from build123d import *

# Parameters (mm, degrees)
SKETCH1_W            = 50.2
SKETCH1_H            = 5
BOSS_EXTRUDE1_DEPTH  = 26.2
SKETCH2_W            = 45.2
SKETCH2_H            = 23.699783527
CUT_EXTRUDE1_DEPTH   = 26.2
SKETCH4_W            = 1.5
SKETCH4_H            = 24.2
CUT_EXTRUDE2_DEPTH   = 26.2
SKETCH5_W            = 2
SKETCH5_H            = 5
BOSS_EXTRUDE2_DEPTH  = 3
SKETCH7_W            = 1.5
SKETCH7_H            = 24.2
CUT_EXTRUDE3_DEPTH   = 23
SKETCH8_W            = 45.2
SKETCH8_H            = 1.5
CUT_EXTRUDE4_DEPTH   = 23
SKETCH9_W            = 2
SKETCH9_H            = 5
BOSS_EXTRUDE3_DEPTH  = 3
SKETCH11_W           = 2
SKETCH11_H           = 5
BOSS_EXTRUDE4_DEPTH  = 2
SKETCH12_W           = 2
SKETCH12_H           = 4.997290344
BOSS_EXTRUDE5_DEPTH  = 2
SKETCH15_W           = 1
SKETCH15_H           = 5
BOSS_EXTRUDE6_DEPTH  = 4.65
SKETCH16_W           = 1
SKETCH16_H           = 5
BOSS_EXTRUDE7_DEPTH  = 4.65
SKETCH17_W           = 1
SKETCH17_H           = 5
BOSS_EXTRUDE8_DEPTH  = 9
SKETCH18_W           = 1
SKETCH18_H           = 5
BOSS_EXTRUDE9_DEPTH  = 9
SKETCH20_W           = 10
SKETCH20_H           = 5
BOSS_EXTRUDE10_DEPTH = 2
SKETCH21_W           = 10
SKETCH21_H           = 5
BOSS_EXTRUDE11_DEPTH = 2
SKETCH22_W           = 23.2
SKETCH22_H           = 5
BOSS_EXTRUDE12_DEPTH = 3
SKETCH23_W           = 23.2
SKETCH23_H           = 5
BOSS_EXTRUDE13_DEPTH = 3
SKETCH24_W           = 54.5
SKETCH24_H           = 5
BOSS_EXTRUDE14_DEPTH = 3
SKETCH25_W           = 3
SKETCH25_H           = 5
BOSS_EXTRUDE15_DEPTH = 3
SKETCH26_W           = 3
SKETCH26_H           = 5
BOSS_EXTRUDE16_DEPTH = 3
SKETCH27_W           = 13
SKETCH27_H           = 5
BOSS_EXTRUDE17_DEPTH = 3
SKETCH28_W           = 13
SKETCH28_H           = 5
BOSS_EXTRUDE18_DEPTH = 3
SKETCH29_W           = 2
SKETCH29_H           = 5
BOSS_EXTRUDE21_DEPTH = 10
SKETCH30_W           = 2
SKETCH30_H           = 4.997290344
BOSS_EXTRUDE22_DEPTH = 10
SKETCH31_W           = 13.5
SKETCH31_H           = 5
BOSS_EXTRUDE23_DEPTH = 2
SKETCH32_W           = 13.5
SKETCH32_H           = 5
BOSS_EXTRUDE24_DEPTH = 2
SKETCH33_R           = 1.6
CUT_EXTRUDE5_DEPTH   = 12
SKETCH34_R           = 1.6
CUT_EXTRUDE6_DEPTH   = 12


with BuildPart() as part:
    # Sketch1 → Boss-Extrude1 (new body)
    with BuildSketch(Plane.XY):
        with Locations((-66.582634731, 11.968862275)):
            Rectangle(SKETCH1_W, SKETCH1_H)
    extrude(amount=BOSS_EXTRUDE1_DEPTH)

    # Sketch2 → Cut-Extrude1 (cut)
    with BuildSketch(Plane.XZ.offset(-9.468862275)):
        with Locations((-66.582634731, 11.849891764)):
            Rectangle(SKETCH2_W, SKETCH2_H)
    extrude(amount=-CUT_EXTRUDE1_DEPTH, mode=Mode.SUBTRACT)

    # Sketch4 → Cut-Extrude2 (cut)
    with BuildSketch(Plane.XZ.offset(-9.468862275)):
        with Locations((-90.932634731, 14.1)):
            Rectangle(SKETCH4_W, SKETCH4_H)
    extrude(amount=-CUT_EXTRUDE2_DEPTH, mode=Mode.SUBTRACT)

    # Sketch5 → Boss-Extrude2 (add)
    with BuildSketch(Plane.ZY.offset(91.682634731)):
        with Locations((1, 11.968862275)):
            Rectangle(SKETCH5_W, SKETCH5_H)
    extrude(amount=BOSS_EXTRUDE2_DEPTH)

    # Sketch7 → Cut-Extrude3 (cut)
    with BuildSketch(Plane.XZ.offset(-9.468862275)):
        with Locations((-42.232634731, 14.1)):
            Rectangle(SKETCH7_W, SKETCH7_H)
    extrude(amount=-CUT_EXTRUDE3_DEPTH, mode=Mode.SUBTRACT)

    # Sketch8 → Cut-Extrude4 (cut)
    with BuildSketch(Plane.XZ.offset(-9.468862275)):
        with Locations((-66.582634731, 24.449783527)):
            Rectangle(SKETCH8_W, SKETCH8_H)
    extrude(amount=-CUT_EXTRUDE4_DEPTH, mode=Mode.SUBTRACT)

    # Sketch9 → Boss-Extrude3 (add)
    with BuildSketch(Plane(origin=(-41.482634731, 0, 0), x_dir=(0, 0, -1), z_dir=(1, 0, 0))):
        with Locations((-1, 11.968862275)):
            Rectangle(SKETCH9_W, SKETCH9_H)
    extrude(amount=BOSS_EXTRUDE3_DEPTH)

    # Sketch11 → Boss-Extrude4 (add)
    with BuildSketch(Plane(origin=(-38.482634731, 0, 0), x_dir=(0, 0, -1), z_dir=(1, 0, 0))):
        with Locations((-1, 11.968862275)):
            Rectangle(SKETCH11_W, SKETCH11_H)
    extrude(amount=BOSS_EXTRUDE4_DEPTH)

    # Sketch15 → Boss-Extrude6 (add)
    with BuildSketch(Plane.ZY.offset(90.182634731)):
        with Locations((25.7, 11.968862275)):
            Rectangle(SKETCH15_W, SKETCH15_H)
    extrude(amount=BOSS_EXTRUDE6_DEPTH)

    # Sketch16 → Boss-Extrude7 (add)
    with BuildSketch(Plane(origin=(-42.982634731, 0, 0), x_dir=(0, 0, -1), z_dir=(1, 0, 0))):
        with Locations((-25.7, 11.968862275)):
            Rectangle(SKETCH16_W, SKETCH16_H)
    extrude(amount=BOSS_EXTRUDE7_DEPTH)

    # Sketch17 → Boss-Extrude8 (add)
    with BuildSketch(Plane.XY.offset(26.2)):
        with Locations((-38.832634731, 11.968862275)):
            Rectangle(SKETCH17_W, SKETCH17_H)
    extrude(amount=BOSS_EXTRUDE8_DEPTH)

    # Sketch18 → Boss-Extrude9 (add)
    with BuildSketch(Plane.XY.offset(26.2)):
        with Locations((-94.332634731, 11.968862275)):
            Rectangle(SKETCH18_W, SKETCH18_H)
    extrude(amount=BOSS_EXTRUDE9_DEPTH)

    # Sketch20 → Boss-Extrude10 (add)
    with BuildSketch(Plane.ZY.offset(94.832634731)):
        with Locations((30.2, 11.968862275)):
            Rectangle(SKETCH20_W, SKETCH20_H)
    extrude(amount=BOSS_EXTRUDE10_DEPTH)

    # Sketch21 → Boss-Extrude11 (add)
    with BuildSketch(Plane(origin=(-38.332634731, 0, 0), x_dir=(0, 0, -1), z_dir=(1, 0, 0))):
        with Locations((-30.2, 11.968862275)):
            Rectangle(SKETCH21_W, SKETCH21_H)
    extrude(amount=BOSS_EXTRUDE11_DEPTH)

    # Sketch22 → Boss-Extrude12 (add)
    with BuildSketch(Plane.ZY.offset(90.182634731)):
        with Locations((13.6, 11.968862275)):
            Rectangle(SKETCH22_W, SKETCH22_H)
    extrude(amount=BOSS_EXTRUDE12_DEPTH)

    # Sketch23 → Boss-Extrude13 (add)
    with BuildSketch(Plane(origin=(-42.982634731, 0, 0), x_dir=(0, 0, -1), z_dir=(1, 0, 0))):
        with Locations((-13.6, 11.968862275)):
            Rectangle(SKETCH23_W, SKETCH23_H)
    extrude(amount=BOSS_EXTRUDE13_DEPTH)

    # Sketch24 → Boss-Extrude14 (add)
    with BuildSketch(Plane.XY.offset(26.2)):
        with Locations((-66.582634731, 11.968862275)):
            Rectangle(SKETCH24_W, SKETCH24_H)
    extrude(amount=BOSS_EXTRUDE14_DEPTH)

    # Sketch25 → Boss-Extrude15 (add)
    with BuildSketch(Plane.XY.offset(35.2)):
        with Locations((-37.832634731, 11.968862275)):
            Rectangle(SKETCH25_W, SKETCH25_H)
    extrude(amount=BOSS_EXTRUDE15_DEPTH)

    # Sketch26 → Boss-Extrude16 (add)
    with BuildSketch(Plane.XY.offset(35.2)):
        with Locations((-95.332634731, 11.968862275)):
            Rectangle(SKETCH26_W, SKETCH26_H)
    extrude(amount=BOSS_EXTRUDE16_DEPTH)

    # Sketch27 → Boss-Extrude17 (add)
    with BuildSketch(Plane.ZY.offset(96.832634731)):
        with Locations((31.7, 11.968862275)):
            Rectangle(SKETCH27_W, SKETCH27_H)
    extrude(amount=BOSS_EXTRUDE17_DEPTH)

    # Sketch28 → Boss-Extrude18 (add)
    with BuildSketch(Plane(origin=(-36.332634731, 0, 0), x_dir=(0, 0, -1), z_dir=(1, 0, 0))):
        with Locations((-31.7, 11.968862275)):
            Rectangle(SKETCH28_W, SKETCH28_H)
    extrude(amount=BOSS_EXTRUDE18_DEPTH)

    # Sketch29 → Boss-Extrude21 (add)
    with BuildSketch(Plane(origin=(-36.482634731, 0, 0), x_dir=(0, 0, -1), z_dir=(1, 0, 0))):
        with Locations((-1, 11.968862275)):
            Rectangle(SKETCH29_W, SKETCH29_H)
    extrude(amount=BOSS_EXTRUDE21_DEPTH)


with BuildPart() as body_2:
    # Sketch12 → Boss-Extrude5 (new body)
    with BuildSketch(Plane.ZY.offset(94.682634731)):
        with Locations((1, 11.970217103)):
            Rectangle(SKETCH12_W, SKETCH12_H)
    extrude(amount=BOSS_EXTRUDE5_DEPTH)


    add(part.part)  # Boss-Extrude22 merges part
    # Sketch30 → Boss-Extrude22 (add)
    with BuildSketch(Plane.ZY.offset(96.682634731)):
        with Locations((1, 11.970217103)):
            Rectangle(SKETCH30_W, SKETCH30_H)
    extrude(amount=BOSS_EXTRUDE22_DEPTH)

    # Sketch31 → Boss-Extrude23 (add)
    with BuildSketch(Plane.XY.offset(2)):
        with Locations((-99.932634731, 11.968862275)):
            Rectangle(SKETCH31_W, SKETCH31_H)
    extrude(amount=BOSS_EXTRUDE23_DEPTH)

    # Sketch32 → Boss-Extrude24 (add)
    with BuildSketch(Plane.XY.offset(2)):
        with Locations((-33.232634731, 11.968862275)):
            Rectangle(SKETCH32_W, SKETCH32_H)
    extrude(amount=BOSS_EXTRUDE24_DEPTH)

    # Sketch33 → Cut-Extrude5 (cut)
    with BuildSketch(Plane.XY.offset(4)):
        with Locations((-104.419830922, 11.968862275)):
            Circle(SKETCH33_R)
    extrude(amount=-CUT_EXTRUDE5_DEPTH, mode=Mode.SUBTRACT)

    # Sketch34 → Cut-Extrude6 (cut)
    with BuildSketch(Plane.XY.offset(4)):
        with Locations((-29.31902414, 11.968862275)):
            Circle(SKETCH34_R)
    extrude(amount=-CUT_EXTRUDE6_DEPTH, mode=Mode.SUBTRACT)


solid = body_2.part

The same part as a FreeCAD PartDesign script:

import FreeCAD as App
import Part
import Sketcher

doc = App.newDocument("Part")
body = doc.addObject("PartDesign::Body", "Body")

# Sketch on XY plane
sketch1 = body.newObject("Sketcher::SketchObject", "Sketch")
sketch1.AttachmentSupport = (doc.getObject("XY_Plane"), [""])
sketch1.MapMode = "FlatFace"
sketch1.addGeometry([
    Part.LineSegment(App.Vector(-92, 14, 0), App.Vector(-92, 9, 0)),
    Part.LineSegment(App.Vector(-92, 9, 0), App.Vector(-41, 9, 0)),
    Part.LineSegment(App.Vector(-41, 9, 0), App.Vector(-41, 14, 0)),
    Part.LineSegment(App.Vector(-41, 14, 0), App.Vector(-92, 14, 0)),
], False)
sketch1.addConstraint([
    Sketcher.Constraint("Coincident", 0, 2, 1, 1),
    Sketcher.Constraint("Coincident", 1, 2, 2, 1),
    Sketcher.Constraint("Coincident", 2, 2, 3, 1),
    Sketcher.Constraint("Coincident", 3, 2, 0, 1),
    Sketcher.Constraint("Vertical", 0),
    Sketcher.Constraint("Horizontal", 1),
    Sketcher.Constraint("Vertical", 2),
    Sketcher.Constraint("Horizontal", 3),
    Sketcher.Constraint("DistanceY", 0, 2, 0, 1, 5.0),
    Sketcher.Constraint("DistanceX", 1, 1, 1, 2, 50.2),
    Sketcher.Constraint("DistanceX", 0, 2, -1, 1, 91.682635),
    Sketcher.Constraint("DistanceY", -1, 1, 0, 2, 9.468862),
])
pad1 = body.newObject("PartDesign::Pad", "Pad")
pad1.Profile = sketch1
pad1.Length = 26.2

# Sketch on XZ plane
sketch2 = body.newObject("Sketcher::SketchObject", "Sketch001")
sketch2.AttachmentSupport = (doc.getObject("XZ_Plane"), [""])
sketch2.MapMode = "FlatFace"
sketch2.AttachmentOffset = App.Placement(App.Vector(0, 0, -9.468862), App.Rotation())
sketch2.addGeometry([
    Part.LineSegment(App.Vector(-89, 24, 0), App.Vector(-89, 0, 0)),
    Part.LineSegment(App.Vector(-89, 0, 0), App.Vector(-44, 0, 0)),
    Part.LineSegment(App.Vector(-44, 0, 0), App.Vector(-44, 24, 0)),
    Part.LineSegment(App.Vector(-44, 24, 0), App.Vector(-89, 24, 0)),
], False)
sketch2.addConstraint([
    Sketcher.Constraint("Coincident", 0, 2, 1, 1),
    Sketcher.Constraint("Coincident", 1, 2, 2, 1),
    Sketcher.Constraint("Coincident", 2, 2, 3, 1),
    Sketcher.Constraint("Coincident", 3, 2, 0, 1),
    Sketcher.Constraint("Vertical", 0),
    Sketcher.Constraint("Horizontal", 1),
    Sketcher.Constraint("Vertical", 2),
    Sketcher.Constraint("Horizontal", 3),
    Sketcher.Constraint("PointOnObject", 0, 2, -1),
    Sketcher.Constraint("DistanceX", 1, 1, 1, 2, 45.2),
    Sketcher.Constraint("DistanceY", 0, 2, 0, 1, 23.699784),
    Sketcher.Constraint("DistanceX", 0, 2, -1, 1, 89.182635),
])
pocket1 = body.newObject("PartDesign::Pocket", "Pocket")
pocket1.Profile = sketch2
pocket1.Length = 26.2

# Sketch on XZ plane
sketch3 = body.newObject("Sketcher::SketchObject", "Sketch002")
sketch3.AttachmentSupport = (doc.getObject("XZ_Plane"), [""])
sketch3.MapMode = "FlatFace"
sketch3.AttachmentOffset = App.Placement(App.Vector(0, 0, -9.468862), App.Rotation())
sketch3.addGeometry([
    Part.LineSegment(App.Vector(-91.7, 26.2, 0), App.Vector(-91.7, 2, 0)),
    Part.LineSegment(App.Vector(-91.7, 2, 0), App.Vector(-90.2, 2, 0)),
    Part.LineSegment(App.Vector(-90.2, 2, 0), App.Vector(-90.2, 26.2, 0)),
    Part.LineSegment(App.Vector(-90.2, 26.2, 0), App.Vector(-91.7, 26.2, 0)),
], False)
sketch3.addConstraint([
    Sketcher.Constraint("Coincident", 0, 2, 1, 1),
    Sketcher.Constraint("Coincident", 1, 2, 2, 1),
    Sketcher.Constraint("Coincident", 2, 2, 3, 1),
    Sketcher.Constraint("Coincident", 3, 2, 0, 1),
    Sketcher.Constraint("Vertical", 0),
    Sketcher.Constraint("Horizontal", 1),
    Sketcher.Constraint("Vertical", 2),
    Sketcher.Constraint("Horizontal", 3),
    Sketcher.Constraint("DistanceX", 1, 1, 1, 2, 1.5),
    Sketcher.Constraint("DistanceY", 0, 2, 0, 1, 24.2),
    Sketcher.Constraint("DistanceY", -1, 1, 0, 2, 2.0),
    Sketcher.Constraint("DistanceX", 0, 2, -1, 1, 91.682635),
])
pocket2 = body.newObject("PartDesign::Pocket", "Pocket001")
pocket2.Profile = sketch3
pocket2.Length = 26.2

# Sketch on YZ plane
sketch4 = body.newObject("Sketcher::SketchObject", "Sketch003")
sketch4.AttachmentSupport = (doc.getObject("YZ_Plane"), [""])
sketch4.MapMode = "FlatFace"
sketch4.AttachmentOffset = App.Placement(App.Vector(0, 0, -91.682635), App.Rotation())
sketch4.addGeometry([
    Part.LineSegment(App.Vector(14.5, 0, 0), App.Vector(9.5, 0, 0)),
    Part.LineSegment(App.Vector(9.5, 0, 0), App.Vector(9.5, 2, 0)),
    Part.LineSegment(App.Vector(9.5, 2, 0), App.Vector(14.5, 2, 0)),
    Part.LineSegment(App.Vector(14.5, 2, 0), App.Vector(14.5, 0, 0)),
], False)
sketch4.addConstraint([
    Sketcher.Constraint("Coincident", 0, 2, 1, 1),
    Sketcher.Constraint("Coincident", 1, 2, 2, 1),
    Sketcher.Constraint("Coincident", 2, 2, 3, 1),
    Sketcher.Constraint("Coincident", 3, 2, 0, 1),
    Sketcher.Constraint("Horizontal", 0),
    Sketcher.Constraint("Vertical", 1),
    Sketcher.Constraint("Horizontal", 2),
    Sketcher.Constraint("Vertical", 3),
    Sketcher.Constraint("PointOnObject", 0, 2, -1),
    Sketcher.Constraint("DistanceX", 0, 2, 0, 1, 5.0),
    Sketcher.Constraint("DistanceY", 1, 1, 1, 2, 2.0),
    Sketcher.Constraint("DistanceX", -1, 1, 0, 2, 9.468862),
])
pad2 = body.newObject("PartDesign::Pad", "Pad001")
pad2.Profile = sketch4
pad2.Length = 3
pad2.Reversed = True

# Sketch on XZ plane
sketch5 = body.newObject("Sketcher::SketchObject", "Sketch004")
sketch5.AttachmentSupport = (doc.getObject("XZ_Plane"), [""])
sketch5.MapMode = "FlatFace"
sketch5.AttachmentOffset = App.Placement(App.Vector(0, 0, -9.468862), App.Rotation())
sketch5.addGeometry([
    Part.LineSegment(App.Vector(-43, 26.2, 0), App.Vector(-43, 2, 0)),
    Part.LineSegment(App.Vector(-43, 2, 0), App.Vector(-41.5, 2, 0)),
    Part.LineSegment(App.Vector(-41.5, 2, 0), App.Vector(-41.5, 26.2, 0)),
    Part.LineSegment(App.Vector(-41.5, 26.2, 0), App.Vector(-43, 26.2, 0)),
], False)
sketch5.addConstraint([
    Sketcher.Constraint("Coincident", 0, 2, 1, 1),
    Sketcher.Constraint("Coincident", 1, 2, 2, 1),
    Sketcher.Constraint("Coincident", 2, 2, 3, 1),
    Sketcher.Constraint("Coincident", 3, 2, 0, 1),
    Sketcher.Constraint("Vertical", 0),
    Sketcher.Constraint("Horizontal", 1),
    Sketcher.Constraint("Vertical", 2),
    Sketcher.Constraint("Horizontal", 3),
    Sketcher.Constraint("DistanceX", 1, 1, 1, 2, 1.5),
    Sketcher.Constraint("DistanceY", 0, 2, 0, 1, 24.2),
    Sketcher.Constraint("DistanceY", -1, 1, 0, 2, 2.0),
    Sketcher.Constraint("DistanceX", 0, 2, -1, 1, 42.982635),
])
pocket3 = body.newObject("PartDesign::Pocket", "Pocket002")
pocket3.Profile = sketch5
pocket3.Length = 23

# Sketch on XZ plane
sketch6 = body.newObject("Sketcher::SketchObject", "Sketch005")
sketch6.AttachmentSupport = (doc.getObject("XZ_Plane"), [""])
sketch6.MapMode = "FlatFace"
sketch6.AttachmentOffset = App.Placement(App.Vector(0, 0, -9.468862), App.Rotation())
sketch6.addGeometry([
    Part.LineSegment(App.Vector(-89.2, 25.2, 0), App.Vector(-89.2, 23.7, 0)),
    Part.LineSegment(App.Vector(-89.2, 23.7, 0), App.Vector(-44, 23.7, 0)),
    Part.LineSegment(App.Vector(-44, 23.7, 0), App.Vector(-44, 25.2, 0)),
    Part.LineSegment(App.Vector(-44, 25.2, 0), App.Vector(-89.2, 25.2, 0)),
], False)
sketch6.addConstraint([
    Sketcher.Constraint("Coincident", 0, 2, 1, 1),
    Sketcher.Constraint("Coincident", 1, 2, 2, 1),
    Sketcher.Constraint("Coincident", 2, 2, 3, 1),
    Sketcher.Constraint("Coincident", 3, 2, 0, 1),
    Sketcher.Constraint("Vertical", 0),
    Sketcher.Constraint("Horizontal", 1),
    Sketcher.Constraint("Vertical", 2),
    Sketcher.Constraint("Horizontal", 3),
    Sketcher.Constraint("DistanceX", 1, 1, 1, 2, 45.2),
    Sketcher.Constraint("DistanceY", 0, 2, 0, 1, 1.5),
    Sketcher.Constraint("DistanceX", 0, 2, -1, 1, 89.182635),
    Sketcher.Constraint("DistanceY", -1, 1, 0, 2, 23.699784),
])
pocket4 = body.newObject("PartDesign::Pocket", "Pocket003")
pocket4.Profile = sketch6
pocket4.Length = 23

# Sketch on YZ plane
sketch7 = body.newObject("Sketcher::SketchObject", "Sketch006")
sketch7.AttachmentSupport = (doc.getObject("YZ_Plane"), [""])
sketch7.MapMode = "FlatFace"
sketch7.AttachmentOffset = App.Placement(App.Vector(0, 0, -41.482635), App.Rotation())
sketch7.addGeometry([
    Part.LineSegment(App.Vector(14.5, 2, 0), App.Vector(9.5, 2, 0)),
    Part.LineSegment(App.Vector(9.5, 2, 0), App.Vector(9.5, 0, 0)),
    Part.LineSegment(App.Vector(9.5, 0, 0), App.Vector(14.5, 0, 0)),
    Part.LineSegment(App.Vector(14.5, 0, 0), App.Vector(14.5, 2, 0)),
], False)
sketch7.addConstraint([
    Sketcher.Constraint("Coincident", 0, 2, 1, 1),
    Sketcher.Constraint("Coincident", 1, 2, 2, 1),
    Sketcher.Constraint("Coincident", 2, 2, 3, 1),
    Sketcher.Constraint("Coincident", 3, 2, 0, 1),
    Sketcher.Constraint("Horizontal", 0),
    Sketcher.Constraint("Vertical", 1),
    Sketcher.Constraint("Horizontal", 2),
    Sketcher.Constraint("Vertical", 3),
    Sketcher.Constraint("PointOnObject", 1, 2, -1),
    Sketcher.Constraint("DistanceX", 0, 2, 0, 1, 5.0),
    Sketcher.Constraint("DistanceY", 1, 2, 1, 1, 2.0),
    Sketcher.Constraint("DistanceX", -1, 1, 0, 2, 9.468862),
])
pad3 = body.newObject("PartDesign::Pad", "Pad002")
pad3.Profile = sketch7
pad3.Length = 3

# Sketch on YZ plane
sketch8 = body.newObject("Sketcher::SketchObject", "Sketch007")
sketch8.AttachmentSupport = (doc.getObject("YZ_Plane"), [""])
sketch8.MapMode = "FlatFace"
sketch8.AttachmentOffset = App.Placement(App.Vector(0, 0, -38.482635), App.Rotation())
sketch8.addGeometry([
    Part.LineSegment(App.Vector(14.5, 2, 0), App.Vector(9.5, 2, 0)),
    Part.LineSegment(App.Vector(9.5, 2, 0), App.Vector(9.5, 0, 0)),
    Part.LineSegment(App.Vector(9.5, 0, 0), App.Vector(14.5, 0, 0)),
    Part.LineSegment(App.Vector(14.5, 0, 0), App.Vector(14.5, 2, 0)),
], False)
sketch8.addConstraint([
    Sketcher.Constraint("Coincident", 0, 2, 1, 1),
    Sketcher.Constraint("Coincident", 1, 2, 2, 1),
    Sketcher.Constraint("Coincident", 2, 2, 3, 1),
    Sketcher.Constraint("Coincident", 3, 2, 0, 1),
    Sketcher.Constraint("Horizontal", 0),
    Sketcher.Constraint("Vertical", 1),
    Sketcher.Constraint("Horizontal", 2),
    Sketcher.Constraint("Vertical", 3),
    Sketcher.Constraint("PointOnObject", 1, 2, -1),
    Sketcher.Constraint("DistanceX", 0, 2, 0, 1, 5.0),
    Sketcher.Constraint("DistanceY", 1, 2, 1, 1, 2.0),
    Sketcher.Constraint("DistanceX", -1, 1, 0, 2, 9.468862),
])
pad4 = body.newObject("PartDesign::Pad", "Pad003")
pad4.Profile = sketch8
pad4.Length = 2

# Sketch on YZ plane
sketch9 = body.newObject("Sketcher::SketchObject", "Sketch008")
sketch9.AttachmentSupport = (doc.getObject("YZ_Plane"), [""])
sketch9.MapMode = "FlatFace"
sketch9.AttachmentOffset = App.Placement(App.Vector(0, 0, -90.182635), App.Rotation())
sketch9.addGeometry([
    Part.LineSegment(App.Vector(14.5, 25.2, 0), App.Vector(9.5, 25.2, 0)),
    Part.LineSegment(App.Vector(9.5, 25.2, 0), App.Vector(9.5, 26.2, 0)),
    Part.LineSegment(App.Vector(9.5, 26.2, 0), App.Vector(14.5, 26.2, 0)),
    Part.LineSegment(App.Vector(14.5, 26.2, 0), App.Vector(14.5, 25.2, 0)),
], False)
sketch9.addConstraint([
    Sketcher.Constraint("Coincident", 0, 2, 1, 1),
    Sketcher.Constraint("Coincident", 1, 2, 2, 1),
    Sketcher.Constraint("Coincident", 2, 2, 3, 1),
    Sketcher.Constraint("Coincident", 3, 2, 0, 1),
    Sketcher.Constraint("Horizontal", 0),
    Sketcher.Constraint("Vertical", 1),
    Sketcher.Constraint("Horizontal", 2),
    Sketcher.Constraint("Vertical", 3),
    Sketcher.Constraint("DistanceX", 0, 2, 0, 1, 5.0),
    Sketcher.Constraint("DistanceY", 1, 1, 1, 2, 1.0),
    Sketcher.Constraint("DistanceY", -1, 1, 0, 2, 25.2),
    Sketcher.Constraint("DistanceX", -1, 1, 0, 2, 9.468862),
])
pad5 = body.newObject("PartDesign::Pad", "Pad004")
pad5.Profile = sketch9
pad5.Length = 4.65
pad5.Reversed = True

# Sketch on YZ plane
sketch10 = body.newObject("Sketcher::SketchObject", "Sketch009")
sketch10.AttachmentSupport = (doc.getObject("YZ_Plane"), [""])
sketch10.MapMode = "FlatFace"
sketch10.AttachmentOffset = App.Placement(App.Vector(0, 0, -42.982635), App.Rotation())
sketch10.addGeometry([
    Part.LineSegment(App.Vector(14.5, 26.2, 0), App.Vector(9.5, 26.2, 0)),
    Part.LineSegment(App.Vector(9.5, 26.2, 0), App.Vector(9.5, 25.2, 0)),
    Part.LineSegment(App.Vector(9.5, 25.2, 0), App.Vector(14.5, 25.2, 0)),
    Part.LineSegment(App.Vector(14.5, 25.2, 0), App.Vector(14.5, 26.2, 0)),
], False)
sketch10.addConstraint([
    Sketcher.Constraint("Coincident", 0, 2, 1, 1),
    Sketcher.Constraint("Coincident", 1, 2, 2, 1),
    Sketcher.Constraint("Coincident", 2, 2, 3, 1),
    Sketcher.Constraint("Coincident", 3, 2, 0, 1),
    Sketcher.Constraint("Horizontal", 0),
    Sketcher.Constraint("Vertical", 1),
    Sketcher.Constraint("Horizontal", 2),
    Sketcher.Constraint("Vertical", 3),
    Sketcher.Constraint("DistanceX", 0, 2, 0, 1, 5.0),
    Sketcher.Constraint("DistanceY", 1, 2, 1, 1, 1.0),
    Sketcher.Constraint("DistanceY", -1, 1, 0, 2, 26.2),
    Sketcher.Constraint("DistanceX", -1, 1, 0, 2, 9.468862),
])
pad6 = body.newObject("PartDesign::Pad", "Pad005")
pad6.Profile = sketch10
pad6.Length = 4.65

# Sketch on XY plane
sketch11 = body.newObject("Sketcher::SketchObject", "Sketch010")
sketch11.AttachmentSupport = (doc.getObject("XY_Plane"), [""])
sketch11.MapMode = "FlatFace"
sketch11.AttachmentOffset = App.Placement(App.Vector(0, 0, 26.2), App.Rotation())
sketch11.addGeometry([
    Part.LineSegment(App.Vector(-39.3, 14.5, 0), App.Vector(-39.3, 9.5, 0)),
    Part.LineSegment(App.Vector(-39.3, 9.5, 0), App.Vector(-38.3, 9.5, 0)),
    Part.LineSegment(App.Vector(-38.3, 9.5, 0), App.Vector(-38.3, 14.5, 0)),
    Part.LineSegment(App.Vector(-38.3, 14.5, 0), App.Vector(-39.3, 14.5, 0)),
], False)
sketch11.addConstraint([
    Sketcher.Constraint("Coincident", 0, 2, 1, 1),
    Sketcher.Constraint("Coincident", 1, 2, 2, 1),
    Sketcher.Constraint("Coincident", 2, 2, 3, 1),
    Sketcher.Constraint("Coincident", 3, 2, 0, 1),
    Sketcher.Constraint("Vertical", 0),
    Sketcher.Constraint("Horizontal", 1),
    Sketcher.Constraint("Vertical", 2),
    Sketcher.Constraint("Horizontal", 3),
    Sketcher.Constraint("DistanceX", 1, 1, 1, 2, 1.0),
    Sketcher.Constraint("DistanceY", 0, 2, 0, 1, 5.0),
    Sketcher.Constraint("DistanceX", 0, 2, -1, 1, 39.332635),
    Sketcher.Constraint("DistanceY", -1, 1, 0, 2, 9.468862),
])
pad7 = body.newObject("PartDesign::Pad", "Pad006")
pad7.Profile = sketch11
pad7.Length = 9

# Sketch on XY plane
sketch12 = body.newObject("Sketcher::SketchObject", "Sketch011")
sketch12.AttachmentSupport = (doc.getObject("XY_Plane"), [""])
sketch12.MapMode = "FlatFace"
sketch12.AttachmentOffset = App.Placement(App.Vector(0, 0, 26.2), App.Rotation())
sketch12.addGeometry([
    Part.LineSegment(App.Vector(-94.8, 14.5, 0), App.Vector(-94.8, 9.5, 0)),
    Part.LineSegment(App.Vector(-94.8, 9.5, 0), App.Vector(-93.8, 9.5, 0)),
    Part.LineSegment(App.Vector(-93.8, 9.5, 0), App.Vector(-93.8, 14.5, 0)),
    Part.LineSegment(App.Vector(-93.8, 14.5, 0), App.Vector(-94.8, 14.5, 0)),
], False)
sketch12.addConstraint([
    Sketcher.Constraint("Coincident", 0, 2, 1, 1),
    Sketcher.Constraint("Coincident", 1, 2, 2, 1),
    Sketcher.Constraint("Coincident", 2, 2, 3, 1),
    Sketcher.Constraint("Coincident", 3, 2, 0, 1),
    Sketcher.Constraint("Vertical", 0),
    Sketcher.Constraint("Horizontal", 1),
    Sketcher.Constraint("Vertical", 2),
    Sketcher.Constraint("Horizontal", 3),
    Sketcher.Constraint("DistanceX", 1, 1, 1, 2, 1.0),
    Sketcher.Constraint("DistanceY", 0, 2, 0, 1, 5.0),
    Sketcher.Constraint("DistanceX", 0, 2, -1, 1, 94.832635),
    Sketcher.Constraint("DistanceY", -1, 1, 0, 2, 9.468862),
])
pad8 = body.newObject("PartDesign::Pad", "Pad007")
pad8.Profile = sketch12
pad8.Length = 9

# Sketch on YZ plane
sketch13 = body.newObject("Sketcher::SketchObject", "Sketch012")
sketch13.AttachmentSupport = (doc.getObject("YZ_Plane"), [""])
sketch13.MapMode = "FlatFace"
sketch13.AttachmentOffset = App.Placement(App.Vector(0, 0, -94.832635), App.Rotation())
sketch13.addGeometry([
    Part.LineSegment(App.Vector(14, 25, 0), App.Vector(9, 25, 0)),
    Part.LineSegment(App.Vector(9, 25, 0), App.Vector(9, 35, 0)),
    Part.LineSegment(App.Vector(9, 35, 0), App.Vector(14, 35, 0)),
    Part.LineSegment(App.Vector(14, 35, 0), App.Vector(14, 25, 0)),
], False)
sketch13.addConstraint([
    Sketcher.Constraint("Coincident", 0, 2, 1, 1),
    Sketcher.Constraint("Coincident", 1, 2, 2, 1),
    Sketcher.Constraint("Coincident", 2, 2, 3, 1),
    Sketcher.Constraint("Coincident", 3, 2, 0, 1),
    Sketcher.Constraint("Horizontal", 0),
    Sketcher.Constraint("Vertical", 1),
    Sketcher.Constraint("Horizontal", 2),
    Sketcher.Constraint("Vertical", 3),
    Sketcher.Constraint("DistanceX", 0, 2, 0, 1, 5.0),
    Sketcher.Constraint("DistanceY", 1, 1, 1, 2, 10.0),
    Sketcher.Constraint("DistanceY", -1, 1, 0, 2, 25.2),
    Sketcher.Constraint("DistanceX", -1, 1, 0, 2, 9.468862),
])
pad9 = body.newObject("PartDesign::Pad", "Pad008")
pad9.Profile = sketch13
pad9.Length = 2
pad9.Reversed = True

# Sketch on YZ plane
sketch14 = body.newObject("Sketcher::SketchObject", "Sketch013")
sketch14.AttachmentSupport = (doc.getObject("YZ_Plane"), [""])
sketch14.MapMode = "FlatFace"
sketch14.AttachmentOffset = App.Placement(App.Vector(0, 0, -38.332635), App.Rotation())
sketch14.addGeometry([
    Part.LineSegment(App.Vector(14, 35, 0), App.Vector(9, 35, 0)),
    Part.LineSegment(App.Vector(9, 35, 0), App.Vector(9, 25, 0)),
    Part.LineSegment(App.Vector(9, 25, 0), App.Vector(14, 25, 0)),
    Part.LineSegment(App.Vector(14, 25, 0), App.Vector(14, 35, 0)),
], False)
sketch14.addConstraint([
    Sketcher.Constraint("Coincident", 0, 2, 1, 1),
    Sketcher.Constraint("Coincident", 1, 2, 2, 1),
    Sketcher.Constraint("Coincident", 2, 2, 3, 1),
    Sketcher.Constraint("Coincident", 3, 2, 0, 1),
    Sketcher.Constraint("Horizontal", 0),
    Sketcher.Constraint("Vertical", 1),
    Sketcher.Constraint("Horizontal", 2),
    Sketcher.Constraint("Vertical", 3),
    Sketcher.Constraint("DistanceX", 0, 2, 0, 1, 5.0),
    Sketcher.Constraint("DistanceY", 1, 2, 1, 1, 10.0),
    Sketcher.Constraint("DistanceY", -1, 1, 0, 2, 35.2),
    Sketcher.Constraint("DistanceX", -1, 1, 0, 2, 9.468862),
])
pad10 = body.newObject("PartDesign::Pad", "Pad009")
pad10.Profile = sketch14
pad10.Length = 2

# Sketch on YZ plane
sketch15 = body.newObject("Sketcher::SketchObject", "Sketch014")
sketch15.AttachmentSupport = (doc.getObject("YZ_Plane"), [""])
sketch15.MapMode = "FlatFace"
sketch15.AttachmentOffset = App.Placement(App.Vector(0, 0, -90.182635), App.Rotation())
sketch15.addGeometry([
    Part.LineSegment(App.Vector(14, 2, 0), App.Vector(9, 2, 0)),
    Part.LineSegment(App.Vector(9, 2, 0), App.Vector(9, 25, 0)),
    Part.LineSegment(App.Vector(9, 25, 0), App.Vector(14, 25, 0)),
    Part.LineSegment(App.Vector(14, 25, 0), App.Vector(14, 2, 0)),
], False)
sketch15.addConstraint([
    Sketcher.Constraint("Coincident", 0, 2, 1, 1),
    Sketcher.Constraint("Coincident", 1, 2, 2, 1),
    Sketcher.Constraint("Coincident", 2, 2, 3, 1),
    Sketcher.Constraint("Coincident", 3, 2, 0, 1),
    Sketcher.Constraint("Horizontal", 0),
    Sketcher.Constraint("Vertical", 1),
    Sketcher.Constraint("Horizontal", 2),
    Sketcher.Constraint("Vertical", 3),
    Sketcher.Constraint("DistanceX", 0, 2, 0, 1, 5.0),
    Sketcher.Constraint("DistanceY", 1, 1, 1, 2, 23.2),
    Sketcher.Constraint("DistanceY", -1, 1, 0, 2, 2.0),
    Sketcher.Constraint("DistanceX", -1, 1, 0, 2, 9.468862),
])
pad11 = body.newObject("PartDesign::Pad", "Pad010")
pad11.Profile = sketch15
pad11.Length = 3
pad11.Reversed = True

# Sketch on YZ plane
sketch16 = body.newObject("Sketcher::SketchObject", "Sketch015")
sketch16.AttachmentSupport = (doc.getObject("YZ_Plane"), [""])
sketch16.MapMode = "FlatFace"
sketch16.AttachmentOffset = App.Placement(App.Vector(0, 0, -42.982635), App.Rotation())
sketch16.addGeometry([
    Part.LineSegment(App.Vector(14, 25, 0), App.Vector(9, 25, 0)),
    Part.LineSegment(App.Vector(9, 25, 0), App.Vector(9, 2, 0)),
    Part.LineSegment(App.Vector(9, 2, 0), App.Vector(14, 2, 0)),
    Part.LineSegment(App.Vector(14, 2, 0), App.Vector(14, 25, 0)),
], False)
sketch16.addConstraint([
    Sketcher.Constraint("Coincident", 0, 2, 1, 1),
    Sketcher.Constraint("Coincident", 1, 2, 2, 1),
    Sketcher.Constraint("Coincident", 2, 2, 3, 1),
    Sketcher.Constraint("Coincident", 3, 2, 0, 1),
    Sketcher.Constraint("Horizontal", 0),
    Sketcher.Constraint("Vertical", 1),
    Sketcher.Constraint("Horizontal", 2),
    Sketcher.Constraint("Vertical", 3),
    Sketcher.Constraint("DistanceX", 0, 2, 0, 1, 5.0),
    Sketcher.Constraint("DistanceY", 1, 2, 1, 1, 23.2),
    Sketcher.Constraint("DistanceY", -1, 1, 1, 2, 2.0),
    Sketcher.Constraint("DistanceX", -1, 1, 0, 2, 9.468862),
])
pad12 = body.newObject("PartDesign::Pad", "Pad011")
pad12.Profile = sketch16
pad12.Length = 3

# Sketch on XY plane
sketch17 = body.newObject("Sketcher::SketchObject", "Sketch016")
sketch17.AttachmentSupport = (doc.getObject("XY_Plane"), [""])
sketch17.MapMode = "FlatFace"
sketch17.AttachmentOffset = App.Placement(App.Vector(0, 0, 26.2), App.Rotation())
sketch17.addGeometry([
    Part.LineSegment(App.Vector(-94, 14, 0), App.Vector(-94, 9, 0)),
    Part.LineSegment(App.Vector(-94, 9, 0), App.Vector(-39, 9, 0)),
    Part.LineSegment(App.Vector(-39, 9, 0), App.Vector(-39, 14, 0)),
    Part.LineSegment(App.Vector(-39, 14, 0), App.Vector(-94, 14, 0)),
], False)
sketch17.addConstraint([
    Sketcher.Constraint("Coincident", 0, 2, 1, 1),
    Sketcher.Constraint("Coincident", 1, 2, 2, 1),
    Sketcher.Constraint("Coincident", 2, 2, 3, 1),
    Sketcher.Constraint("Coincident", 3, 2, 0, 1),
    Sketcher.Constraint("Vertical", 0),
    Sketcher.Constraint("Horizontal", 1),
    Sketcher.Constraint("Vertical", 2),
    Sketcher.Constraint("Horizontal", 3),
    Sketcher.Constraint("DistanceY", 0, 2, 0, 1, 5.0),
    Sketcher.Constraint("DistanceX", 1, 1, 1, 2, 54.5),
    Sketcher.Constraint("DistanceX", 0, 2, -1, 1, 93.832635),
    Sketcher.Constraint("DistanceY", -1, 1, 0, 2, 9.468862),
])
pad13 = body.newObject("PartDesign::Pad", "Pad012")
pad13.Profile = sketch17
pad13.Length = 3

# Sketch on XY plane
sketch18 = body.newObject("Sketcher::SketchObject", "Sketch017")
sketch18.AttachmentSupport = (doc.getObject("XY_Plane"), [""])
sketch18.MapMode = "FlatFace"
sketch18.AttachmentOffset = App.Placement(App.Vector(0, 0, 35.2), App.Rotation())
sketch18.addGeometry([
    Part.LineSegment(App.Vector(-39.3, 14.5, 0), App.Vector(-39.3, 9.5, 0)),
    Part.LineSegment(App.Vector(-39.3, 9.5, 0), App.Vector(-36.3, 9.5, 0)),
    Part.LineSegment(App.Vector(-36.3, 9.5, 0), App.Vector(-36.3, 14.5, 0)),
    Part.LineSegment(App.Vector(-36.3, 14.5, 0), App.Vector(-39.3, 14.5, 0)),
], False)
sketch18.addConstraint([
    Sketcher.Constraint("Coincident", 0, 2, 1, 1),
    Sketcher.Constraint("Coincident", 1, 2, 2, 1),
    Sketcher.Constraint("Coincident", 2, 2, 3, 1),
    Sketcher.Constraint("Coincident", 3, 2, 0, 1),
    Sketcher.Constraint("Vertical", 0),
    Sketcher.Constraint("Horizontal", 1),
    Sketcher.Constraint("Vertical", 2),
    Sketcher.Constraint("Horizontal", 3),
    Sketcher.Constraint("DistanceX", 1, 1, 1, 2, 3.0),
    Sketcher.Constraint("DistanceY", 0, 2, 0, 1, 5.0),
    Sketcher.Constraint("DistanceX", 0, 2, -1, 1, 39.332635),
    Sketcher.Constraint("DistanceY", -1, 1, 0, 2, 9.468862),
])
pad14 = body.newObject("PartDesign::Pad", "Pad013")
pad14.Profile = sketch18
pad14.Length = 3

# Sketch on XY plane
sketch19 = body.newObject("Sketcher::SketchObject", "Sketch018")
sketch19.AttachmentSupport = (doc.getObject("XY_Plane"), [""])
sketch19.MapMode = "FlatFace"
sketch19.AttachmentOffset = App.Placement(App.Vector(0, 0, 35.2), App.Rotation())
sketch19.addGeometry([
    Part.LineSegment(App.Vector(-96.8, 14.5, 0), App.Vector(-96.8, 9.5, 0)),
    Part.LineSegment(App.Vector(-96.8, 9.5, 0), App.Vector(-93.8, 9.5, 0)),
    Part.LineSegment(App.Vector(-93.8, 9.5, 0), App.Vector(-93.8, 14.5, 0)),
    Part.LineSegment(App.Vector(-93.8, 14.5, 0), App.Vector(-96.8, 14.5, 0)),
], False)
sketch19.addConstraint([
    Sketcher.Constraint("Coincident", 0, 2, 1, 1),
    Sketcher.Constraint("Coincident", 1, 2, 2, 1),
    Sketcher.Constraint("Coincident", 2, 2, 3, 1),
    Sketcher.Constraint("Coincident", 3, 2, 0, 1),
    Sketcher.Constraint("Vertical", 0),
    Sketcher.Constraint("Horizontal", 1),
    Sketcher.Constraint("Vertical", 2),
    Sketcher.Constraint("Horizontal", 3),
    Sketcher.Constraint("DistanceX", 1, 1, 1, 2, 3.0),
    Sketcher.Constraint("DistanceY", 0, 2, 0, 1, 5.0),
    Sketcher.Constraint("DistanceX", 0, 2, -1, 1, 96.832635),
    Sketcher.Constraint("DistanceY", -1, 1, 0, 2, 9.468862),
])
pad15 = body.newObject("PartDesign::Pad", "Pad014")
pad15.Profile = sketch19
pad15.Length = 3

# Sketch on YZ plane
sketch20 = body.newObject("Sketcher::SketchObject", "Sketch019")
sketch20.AttachmentSupport = (doc.getObject("YZ_Plane"), [""])
sketch20.MapMode = "FlatFace"
sketch20.AttachmentOffset = App.Placement(App.Vector(0, 0, -96.832635), App.Rotation())
sketch20.addGeometry([
    Part.LineSegment(App.Vector(14, 25, 0), App.Vector(9, 25, 0)),
    Part.LineSegment(App.Vector(9, 25, 0), App.Vector(9, 38, 0)),
    Part.LineSegment(App.Vector(9, 38, 0), App.Vector(14, 38, 0)),
    Part.LineSegment(App.Vector(14, 38, 0), App.Vector(14, 25, 0)),
], False)
sketch20.addConstraint([
    Sketcher.Constraint("Coincident", 0, 2, 1, 1),
    Sketcher.Constraint("Coincident", 1, 2, 2, 1),
    Sketcher.Constraint("Coincident", 2, 2, 3, 1),
    Sketcher.Constraint("Coincident", 3, 2, 0, 1),
    Sketcher.Constraint("Horizontal", 0),
    Sketcher.Constraint("Vertical", 1),
    Sketcher.Constraint("Horizontal", 2),
    Sketcher.Constraint("Vertical", 3),
    Sketcher.Constraint("DistanceX", 0, 2, 0, 1, 5.0),
    Sketcher.Constraint("DistanceY", 1, 1, 1, 2, 13.0),
    Sketcher.Constraint("DistanceY", -1, 1, 0, 2, 25.2),
    Sketcher.Constraint("DistanceX", -1, 1, 0, 2, 9.468862),
])
pad16 = body.newObject("PartDesign::Pad", "Pad015")
pad16.Profile = sketch20
pad16.Length = 3
pad16.Reversed = True

# Sketch on YZ plane
sketch21 = body.newObject("Sketcher::SketchObject", "Sketch020")
sketch21.AttachmentSupport = (doc.getObject("YZ_Plane"), [""])
sketch21.MapMode = "FlatFace"
sketch21.AttachmentOffset = App.Placement(App.Vector(0, 0, -36.332635), App.Rotation())
sketch21.addGeometry([
    Part.LineSegment(App.Vector(14, 38, 0), App.Vector(9, 38, 0)),
    Part.LineSegment(App.Vector(9, 38, 0), App.Vector(9, 25, 0)),
    Part.LineSegment(App.Vector(9, 25, 0), App.Vector(14, 25, 0)),
    Part.LineSegment(App.Vector(14, 25, 0), App.Vector(14, 38, 0)),
], False)
sketch21.addConstraint([
    Sketcher.Constraint("Coincident", 0, 2, 1, 1),
    Sketcher.Constraint("Coincident", 1, 2, 2, 1),
    Sketcher.Constraint("Coincident", 2, 2, 3, 1),
    Sketcher.Constraint("Coincident", 3, 2, 0, 1),
    Sketcher.Constraint("Horizontal", 0),
    Sketcher.Constraint("Vertical", 1),
    Sketcher.Constraint("Horizontal", 2),
    Sketcher.Constraint("Vertical", 3),
    Sketcher.Constraint("DistanceX", 0, 2, 0, 1, 5.0),
    Sketcher.Constraint("DistanceY", 1, 2, 1, 1, 13.0),
    Sketcher.Constraint("DistanceY", -1, 1, 0, 2, 38.2),
    Sketcher.Constraint("DistanceX", -1, 1, 0, 2, 9.468862),
])
pad17 = body.newObject("PartDesign::Pad", "Pad016")
pad17.Profile = sketch21
pad17.Length = 3

# Sketch on YZ plane
sketch22 = body.newObject("Sketcher::SketchObject", "Sketch021")
sketch22.AttachmentSupport = (doc.getObject("YZ_Plane"), [""])
sketch22.MapMode = "FlatFace"
sketch22.AttachmentOffset = App.Placement(App.Vector(0, 0, -36.482635), App.Rotation())
sketch22.addGeometry([
    Part.LineSegment(App.Vector(14.5, 2, 0), App.Vector(9.5, 2, 0)),
    Part.LineSegment(App.Vector(9.5, 2, 0), App.Vector(9.5, 0, 0)),
    Part.LineSegment(App.Vector(9.5, 0, 0), App.Vector(14.5, 0, 0)),
    Part.LineSegment(App.Vector(14.5, 0, 0), App.Vector(14.5, 2, 0)),
], False)
sketch22.addConstraint([
    Sketcher.Constraint("Coincident", 0, 2, 1, 1),
    Sketcher.Constraint("Coincident", 1, 2, 2, 1),
    Sketcher.Constraint("Coincident", 2, 2, 3, 1),
    Sketcher.Constraint("Coincident", 3, 2, 0, 1),
    Sketcher.Constraint("Horizontal", 0),
    Sketcher.Constraint("Vertical", 1),
    Sketcher.Constraint("Horizontal", 2),
    Sketcher.Constraint("Vertical", 3),
    Sketcher.Constraint("PointOnObject", 1, 2, -1),
    Sketcher.Constraint("DistanceX", 0, 2, 0, 1, 5.0),
    Sketcher.Constraint("DistanceY", 1, 2, 1, 1, 2.0),
    Sketcher.Constraint("DistanceX", -1, 1, 0, 2, 9.468862),
])
pad18 = body.newObject("PartDesign::Pad", "Pad017")
pad18.Profile = sketch22
pad18.Length = 10
body2 = doc.addObject("PartDesign::Body", "Body001")

# Sketch on YZ plane
sketch23 = body2.newObject("Sketcher::SketchObject", "Sketch022")
sketch23.AttachmentSupport = (doc.getObject("YZ_Plane001"), [""])
sketch23.MapMode = "FlatFace"
sketch23.AttachmentOffset = App.Placement(App.Vector(0, 0, -94.682635), App.Rotation())
sketch23.addGeometry([
    Part.LineSegment(App.Vector(14.5, 0, 0), App.Vector(9.5, 0, 0)),
    Part.LineSegment(App.Vector(9.5, 0, 0), App.Vector(9.5, 2, 0)),
    Part.LineSegment(App.Vector(9.5, 2, 0), App.Vector(14.5, 2, 0)),
    Part.LineSegment(App.Vector(14.5, 2, 0), App.Vector(14.5, 0, 0)),
], False)
sketch23.addConstraint([
    Sketcher.Constraint("Coincident", 0, 2, 1, 1),
    Sketcher.Constraint("Coincident", 1, 2, 2, 1),
    Sketcher.Constraint("Coincident", 2, 2, 3, 1),
    Sketcher.Constraint("Coincident", 3, 2, 0, 1),
    Sketcher.Constraint("Horizontal", 0),
    Sketcher.Constraint("Vertical", 1),
    Sketcher.Constraint("Horizontal", 2),
    Sketcher.Constraint("Vertical", 3),
    Sketcher.Constraint("PointOnObject", 0, 2, -1),
    Sketcher.Constraint("DistanceY", 1, 1, 1, 2, 2.0),
    Sketcher.Constraint("DistanceX", 0, 2, 0, 1, 4.99729),
    Sketcher.Constraint("DistanceX", -1, 1, 0, 2, 9.471572),
])
pad19 = body2.newObject("PartDesign::Pad", "Pad018")
pad19.Profile = sketch23
pad19.Length = 2
pad19.Reversed = True
doc.recompute()

boolean = body2.newObject("PartDesign::Boolean", "Boolean")
boolean.Type = "Fuse"
boolean.addObjects([body])

# Sketch on YZ plane
sketch24 = body2.newObject("Sketcher::SketchObject", "Sketch023")
sketch24.AttachmentSupport = (doc.getObject("YZ_Plane001"), [""])
sketch24.MapMode = "FlatFace"
sketch24.AttachmentOffset = App.Placement(App.Vector(0, 0, -96.682635), App.Rotation())
sketch24.addGeometry([
    Part.LineSegment(App.Vector(14.5, 0, 0), App.Vector(9.5, 0, 0)),
    Part.LineSegment(App.Vector(9.5, 0, 0), App.Vector(9.5, 2, 0)),
    Part.LineSegment(App.Vector(9.5, 2, 0), App.Vector(14.5, 2, 0)),
    Part.LineSegment(App.Vector(14.5, 2, 0), App.Vector(14.5, 0, 0)),
], False)
sketch24.addConstraint([
    Sketcher.Constraint("Coincident", 0, 2, 1, 1),
    Sketcher.Constraint("Coincident", 1, 2, 2, 1),
    Sketcher.Constraint("Coincident", 2, 2, 3, 1),
    Sketcher.Constraint("Coincident", 3, 2, 0, 1),
    Sketcher.Constraint("Horizontal", 0),
    Sketcher.Constraint("Vertical", 1),
    Sketcher.Constraint("Horizontal", 2),
    Sketcher.Constraint("Vertical", 3),
    Sketcher.Constraint("PointOnObject", 0, 2, -1),
    Sketcher.Constraint("DistanceY", 1, 1, 1, 2, 2.0),
    Sketcher.Constraint("DistanceX", 0, 2, 0, 1, 4.99729),
    Sketcher.Constraint("DistanceX", -1, 1, 0, 2, 9.471572),
])
pad20 = body2.newObject("PartDesign::Pad", "Pad019")
pad20.Profile = sketch24
pad20.Length = 10
pad20.Reversed = True

# Sketch on XY plane
sketch25 = body2.newObject("Sketcher::SketchObject", "Sketch024")
sketch25.AttachmentSupport = (doc.getObject("XY_Plane001"), [""])
sketch25.MapMode = "FlatFace"
sketch25.AttachmentOffset = App.Placement(App.Vector(0, 0, 2), App.Rotation())
sketch25.addGeometry([
    Part.LineSegment(App.Vector(-107, 14, 0), App.Vector(-107, 9, 0)),
    Part.LineSegment(App.Vector(-107, 9, 0), App.Vector(-93, 9, 0)),
    Part.LineSegment(App.Vector(-93, 9, 0), App.Vector(-93, 14, 0)),
    Part.LineSegment(App.Vector(-93, 14, 0), App.Vector(-107, 14, 0)),
], False)
sketch25.addConstraint([
    Sketcher.Constraint("Coincident", 0, 2, 1, 1),
    Sketcher.Constraint("Coincident", 1, 2, 2, 1),
    Sketcher.Constraint("Coincident", 2, 2, 3, 1),
    Sketcher.Constraint("Coincident", 3, 2, 0, 1),
    Sketcher.Constraint("Vertical", 0),
    Sketcher.Constraint("Horizontal", 1),
    Sketcher.Constraint("Vertical", 2),
    Sketcher.Constraint("Horizontal", 3),
    Sketcher.Constraint("DistanceY", 0, 2, 0, 1, 5.0),
    Sketcher.Constraint("DistanceX", 1, 1, 1, 2, 13.5),
    Sketcher.Constraint("DistanceX", 0, 2, -1, 1, 106.682635),
    Sketcher.Constraint("DistanceY", -1, 1, 0, 2, 9.468862),
])
pad21 = body2.newObject("PartDesign::Pad", "Pad020")
pad21.Profile = sketch25
pad21.Length = 2

# Sketch on XY plane
sketch26 = body2.newObject("Sketcher::SketchObject", "Sketch025")
sketch26.AttachmentSupport = (doc.getObject("XY_Plane001"), [""])
sketch26.MapMode = "FlatFace"
sketch26.AttachmentOffset = App.Placement(App.Vector(0, 0, 2), App.Rotation())
sketch26.addGeometry([
    Part.LineSegment(App.Vector(-40, 14, 0), App.Vector(-40, 9, 0)),
    Part.LineSegment(App.Vector(-40, 9, 0), App.Vector(-26, 9, 0)),
    Part.LineSegment(App.Vector(-26, 9, 0), App.Vector(-26, 14, 0)),
    Part.LineSegment(App.Vector(-26, 14, 0), App.Vector(-40, 14, 0)),
], False)
sketch26.addConstraint([
    Sketcher.Constraint("Coincident", 0, 2, 1, 1),
    Sketcher.Constraint("Coincident", 1, 2, 2, 1),
    Sketcher.Constraint("Coincident", 2, 2, 3, 1),
    Sketcher.Constraint("Coincident", 3, 2, 0, 1),
    Sketcher.Constraint("Vertical", 0),
    Sketcher.Constraint("Horizontal", 1),
    Sketcher.Constraint("Vertical", 2),
    Sketcher.Constraint("Horizontal", 3),
    Sketcher.Constraint("DistanceY", 0, 2, 0, 1, 5.0),
    Sketcher.Constraint("DistanceX", 1, 1, 1, 2, 13.5),
    Sketcher.Constraint("DistanceX", 0, 2, -1, 1, 39.982635),
    Sketcher.Constraint("DistanceY", -1, 1, 0, 2, 9.468862),
])
pad22 = body2.newObject("PartDesign::Pad", "Pad021")
pad22.Profile = sketch26
pad22.Length = 2

# Sketch on XY plane
sketch27 = body2.newObject("Sketcher::SketchObject", "Sketch026")
sketch27.AttachmentSupport = (doc.getObject("XY_Plane001"), [""])
sketch27.MapMode = "FlatFace"
sketch27.AttachmentOffset = App.Placement(App.Vector(0, 0, 4), App.Rotation())
sketch27.addGeometry(Part.Circle(App.Vector(-104.4, 12, 0), App.Vector(0, 0, 1), 1.6), False)
sketch27.addConstraint([
    Sketcher.Constraint("Diameter", 0, 3.2),
    Sketcher.Constraint("DistanceX", 0, 3, -1, 1, 104.419831),
    Sketcher.Constraint("DistanceY", -1, 1, 0, 3, 11.968862),
])
pocket5 = body2.newObject("PartDesign::Pocket", "Pocket004")
pocket5.Profile = sketch27
pocket5.Length = 12

# Sketch on XY plane
sketch28 = body2.newObject("Sketcher::SketchObject", "Sketch027")
sketch28.AttachmentSupport = (doc.getObject("XY_Plane001"), [""])
sketch28.MapMode = "FlatFace"
sketch28.AttachmentOffset = App.Placement(App.Vector(0, 0, 4), App.Rotation())
sketch28.addGeometry(Part.Circle(App.Vector(-29.3, 12, 0), App.Vector(0, 0, 1), 1.6), False)
sketch28.addConstraint([
    Sketcher.Constraint("Diameter", 0, 3.2),
    Sketcher.Constraint("DistanceX", 0, 3, -1, 1, 29.319024),
    Sketcher.Constraint("DistanceY", -1, 1, 0, 3, 11.968862),
])
pocket6 = body2.newObject("PartDesign::Pocket", "Pocket005")
pocket6.Profile = sketch28
pocket6.Length = 12

doc.recompute()
